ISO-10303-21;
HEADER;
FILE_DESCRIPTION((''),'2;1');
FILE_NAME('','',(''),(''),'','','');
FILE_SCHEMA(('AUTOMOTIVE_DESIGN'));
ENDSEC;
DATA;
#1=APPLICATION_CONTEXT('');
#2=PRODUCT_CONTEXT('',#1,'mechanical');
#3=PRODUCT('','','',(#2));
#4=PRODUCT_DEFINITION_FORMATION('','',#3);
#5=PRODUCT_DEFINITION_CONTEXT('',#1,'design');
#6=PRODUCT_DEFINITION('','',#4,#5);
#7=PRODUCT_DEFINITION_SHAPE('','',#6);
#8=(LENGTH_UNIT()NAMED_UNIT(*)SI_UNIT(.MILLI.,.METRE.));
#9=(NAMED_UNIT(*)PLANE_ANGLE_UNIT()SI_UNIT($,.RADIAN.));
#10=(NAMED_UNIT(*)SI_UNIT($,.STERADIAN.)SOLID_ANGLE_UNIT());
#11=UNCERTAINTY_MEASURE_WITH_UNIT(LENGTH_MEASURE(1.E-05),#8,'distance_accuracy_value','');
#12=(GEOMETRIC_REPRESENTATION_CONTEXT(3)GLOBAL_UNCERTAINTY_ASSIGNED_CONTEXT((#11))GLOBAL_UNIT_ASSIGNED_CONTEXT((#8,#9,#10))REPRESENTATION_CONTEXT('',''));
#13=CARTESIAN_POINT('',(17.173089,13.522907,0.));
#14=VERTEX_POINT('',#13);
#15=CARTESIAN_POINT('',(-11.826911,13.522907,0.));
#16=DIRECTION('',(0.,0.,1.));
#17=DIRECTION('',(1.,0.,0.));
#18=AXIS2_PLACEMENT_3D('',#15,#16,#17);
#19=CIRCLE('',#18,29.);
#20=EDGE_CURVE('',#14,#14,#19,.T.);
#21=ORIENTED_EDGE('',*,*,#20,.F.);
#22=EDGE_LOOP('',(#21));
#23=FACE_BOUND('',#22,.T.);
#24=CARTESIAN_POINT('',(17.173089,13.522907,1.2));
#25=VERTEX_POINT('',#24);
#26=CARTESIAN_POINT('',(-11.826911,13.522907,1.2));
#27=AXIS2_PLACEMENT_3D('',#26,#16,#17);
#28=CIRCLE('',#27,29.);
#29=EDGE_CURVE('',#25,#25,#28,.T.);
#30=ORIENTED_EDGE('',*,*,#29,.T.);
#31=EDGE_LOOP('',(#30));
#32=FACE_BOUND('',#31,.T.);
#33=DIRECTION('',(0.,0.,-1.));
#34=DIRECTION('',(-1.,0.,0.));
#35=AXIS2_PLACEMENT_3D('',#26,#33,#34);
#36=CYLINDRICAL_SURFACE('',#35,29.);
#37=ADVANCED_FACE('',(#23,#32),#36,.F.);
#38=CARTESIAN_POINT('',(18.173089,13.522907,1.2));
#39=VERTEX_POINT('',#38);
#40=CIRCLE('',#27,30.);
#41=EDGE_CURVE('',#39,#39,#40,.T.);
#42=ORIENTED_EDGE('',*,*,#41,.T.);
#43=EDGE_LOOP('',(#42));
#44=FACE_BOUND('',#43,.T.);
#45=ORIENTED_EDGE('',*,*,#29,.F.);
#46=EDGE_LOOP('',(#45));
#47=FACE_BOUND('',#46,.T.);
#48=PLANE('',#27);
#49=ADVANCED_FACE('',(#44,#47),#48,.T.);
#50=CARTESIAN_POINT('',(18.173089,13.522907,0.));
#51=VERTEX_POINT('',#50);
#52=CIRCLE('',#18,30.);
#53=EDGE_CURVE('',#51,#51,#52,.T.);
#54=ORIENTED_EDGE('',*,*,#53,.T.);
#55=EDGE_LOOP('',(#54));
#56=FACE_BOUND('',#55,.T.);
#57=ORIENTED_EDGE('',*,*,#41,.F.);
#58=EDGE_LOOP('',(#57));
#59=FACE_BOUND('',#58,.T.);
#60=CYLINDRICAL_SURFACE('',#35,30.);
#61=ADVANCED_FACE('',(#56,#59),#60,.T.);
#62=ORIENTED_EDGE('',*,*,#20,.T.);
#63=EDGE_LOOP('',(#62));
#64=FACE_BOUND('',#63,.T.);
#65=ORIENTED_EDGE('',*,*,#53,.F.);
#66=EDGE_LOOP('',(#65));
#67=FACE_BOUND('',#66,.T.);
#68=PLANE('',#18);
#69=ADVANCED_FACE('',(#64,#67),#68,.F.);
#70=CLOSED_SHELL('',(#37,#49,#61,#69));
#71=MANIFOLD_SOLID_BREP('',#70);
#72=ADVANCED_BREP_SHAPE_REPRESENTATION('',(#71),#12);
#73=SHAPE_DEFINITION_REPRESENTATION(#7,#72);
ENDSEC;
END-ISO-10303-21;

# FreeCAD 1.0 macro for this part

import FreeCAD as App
import Part
import Sketcher
Q = App.Units.Quantity

doc = App.newDocument("Part")
body = doc.addObject("PartDesign::Body", "Body")

# Sketch on XY plane
sketch1 = doc.addObject("Sketcher::SketchObject", "Sketch")
body.addObject(sketch1)
sketch1.AttachmentSupport = (doc.XY_Plane, [""])
sketch1.MapMode = "FlatFace"
sketch1.addGeometry([
    Part.Circle(App.Vector(-12, 14, 0), App.Vector(0, 0, 1), 30),
    Part.Circle(App.Vector(-12, 14, 0), App.Vector(0, 0, 1), 29),
], False)
sketch1.addConstraint([
    Sketcher.Constraint("Coincident", 1, 3, 0, 3),
    Sketcher.Constraint("Diameter", 0, Q("60 mm")),
    Sketcher.Constraint("Diameter", 1, Q("58 mm")),
    Sketcher.Constraint("DistanceX", 0, 3, -1, 1, Q("11.826911 mm")),
    Sketcher.Constraint("DistanceY", -1, 1, 0, 3, Q("13.522907 mm")),
])
pad1 = doc.addObject("PartDesign::Pad", "Pad")
body.addObject(pad1)
pad1.Profile = sketch1
pad1.Length = 1.2

doc.recompute()
